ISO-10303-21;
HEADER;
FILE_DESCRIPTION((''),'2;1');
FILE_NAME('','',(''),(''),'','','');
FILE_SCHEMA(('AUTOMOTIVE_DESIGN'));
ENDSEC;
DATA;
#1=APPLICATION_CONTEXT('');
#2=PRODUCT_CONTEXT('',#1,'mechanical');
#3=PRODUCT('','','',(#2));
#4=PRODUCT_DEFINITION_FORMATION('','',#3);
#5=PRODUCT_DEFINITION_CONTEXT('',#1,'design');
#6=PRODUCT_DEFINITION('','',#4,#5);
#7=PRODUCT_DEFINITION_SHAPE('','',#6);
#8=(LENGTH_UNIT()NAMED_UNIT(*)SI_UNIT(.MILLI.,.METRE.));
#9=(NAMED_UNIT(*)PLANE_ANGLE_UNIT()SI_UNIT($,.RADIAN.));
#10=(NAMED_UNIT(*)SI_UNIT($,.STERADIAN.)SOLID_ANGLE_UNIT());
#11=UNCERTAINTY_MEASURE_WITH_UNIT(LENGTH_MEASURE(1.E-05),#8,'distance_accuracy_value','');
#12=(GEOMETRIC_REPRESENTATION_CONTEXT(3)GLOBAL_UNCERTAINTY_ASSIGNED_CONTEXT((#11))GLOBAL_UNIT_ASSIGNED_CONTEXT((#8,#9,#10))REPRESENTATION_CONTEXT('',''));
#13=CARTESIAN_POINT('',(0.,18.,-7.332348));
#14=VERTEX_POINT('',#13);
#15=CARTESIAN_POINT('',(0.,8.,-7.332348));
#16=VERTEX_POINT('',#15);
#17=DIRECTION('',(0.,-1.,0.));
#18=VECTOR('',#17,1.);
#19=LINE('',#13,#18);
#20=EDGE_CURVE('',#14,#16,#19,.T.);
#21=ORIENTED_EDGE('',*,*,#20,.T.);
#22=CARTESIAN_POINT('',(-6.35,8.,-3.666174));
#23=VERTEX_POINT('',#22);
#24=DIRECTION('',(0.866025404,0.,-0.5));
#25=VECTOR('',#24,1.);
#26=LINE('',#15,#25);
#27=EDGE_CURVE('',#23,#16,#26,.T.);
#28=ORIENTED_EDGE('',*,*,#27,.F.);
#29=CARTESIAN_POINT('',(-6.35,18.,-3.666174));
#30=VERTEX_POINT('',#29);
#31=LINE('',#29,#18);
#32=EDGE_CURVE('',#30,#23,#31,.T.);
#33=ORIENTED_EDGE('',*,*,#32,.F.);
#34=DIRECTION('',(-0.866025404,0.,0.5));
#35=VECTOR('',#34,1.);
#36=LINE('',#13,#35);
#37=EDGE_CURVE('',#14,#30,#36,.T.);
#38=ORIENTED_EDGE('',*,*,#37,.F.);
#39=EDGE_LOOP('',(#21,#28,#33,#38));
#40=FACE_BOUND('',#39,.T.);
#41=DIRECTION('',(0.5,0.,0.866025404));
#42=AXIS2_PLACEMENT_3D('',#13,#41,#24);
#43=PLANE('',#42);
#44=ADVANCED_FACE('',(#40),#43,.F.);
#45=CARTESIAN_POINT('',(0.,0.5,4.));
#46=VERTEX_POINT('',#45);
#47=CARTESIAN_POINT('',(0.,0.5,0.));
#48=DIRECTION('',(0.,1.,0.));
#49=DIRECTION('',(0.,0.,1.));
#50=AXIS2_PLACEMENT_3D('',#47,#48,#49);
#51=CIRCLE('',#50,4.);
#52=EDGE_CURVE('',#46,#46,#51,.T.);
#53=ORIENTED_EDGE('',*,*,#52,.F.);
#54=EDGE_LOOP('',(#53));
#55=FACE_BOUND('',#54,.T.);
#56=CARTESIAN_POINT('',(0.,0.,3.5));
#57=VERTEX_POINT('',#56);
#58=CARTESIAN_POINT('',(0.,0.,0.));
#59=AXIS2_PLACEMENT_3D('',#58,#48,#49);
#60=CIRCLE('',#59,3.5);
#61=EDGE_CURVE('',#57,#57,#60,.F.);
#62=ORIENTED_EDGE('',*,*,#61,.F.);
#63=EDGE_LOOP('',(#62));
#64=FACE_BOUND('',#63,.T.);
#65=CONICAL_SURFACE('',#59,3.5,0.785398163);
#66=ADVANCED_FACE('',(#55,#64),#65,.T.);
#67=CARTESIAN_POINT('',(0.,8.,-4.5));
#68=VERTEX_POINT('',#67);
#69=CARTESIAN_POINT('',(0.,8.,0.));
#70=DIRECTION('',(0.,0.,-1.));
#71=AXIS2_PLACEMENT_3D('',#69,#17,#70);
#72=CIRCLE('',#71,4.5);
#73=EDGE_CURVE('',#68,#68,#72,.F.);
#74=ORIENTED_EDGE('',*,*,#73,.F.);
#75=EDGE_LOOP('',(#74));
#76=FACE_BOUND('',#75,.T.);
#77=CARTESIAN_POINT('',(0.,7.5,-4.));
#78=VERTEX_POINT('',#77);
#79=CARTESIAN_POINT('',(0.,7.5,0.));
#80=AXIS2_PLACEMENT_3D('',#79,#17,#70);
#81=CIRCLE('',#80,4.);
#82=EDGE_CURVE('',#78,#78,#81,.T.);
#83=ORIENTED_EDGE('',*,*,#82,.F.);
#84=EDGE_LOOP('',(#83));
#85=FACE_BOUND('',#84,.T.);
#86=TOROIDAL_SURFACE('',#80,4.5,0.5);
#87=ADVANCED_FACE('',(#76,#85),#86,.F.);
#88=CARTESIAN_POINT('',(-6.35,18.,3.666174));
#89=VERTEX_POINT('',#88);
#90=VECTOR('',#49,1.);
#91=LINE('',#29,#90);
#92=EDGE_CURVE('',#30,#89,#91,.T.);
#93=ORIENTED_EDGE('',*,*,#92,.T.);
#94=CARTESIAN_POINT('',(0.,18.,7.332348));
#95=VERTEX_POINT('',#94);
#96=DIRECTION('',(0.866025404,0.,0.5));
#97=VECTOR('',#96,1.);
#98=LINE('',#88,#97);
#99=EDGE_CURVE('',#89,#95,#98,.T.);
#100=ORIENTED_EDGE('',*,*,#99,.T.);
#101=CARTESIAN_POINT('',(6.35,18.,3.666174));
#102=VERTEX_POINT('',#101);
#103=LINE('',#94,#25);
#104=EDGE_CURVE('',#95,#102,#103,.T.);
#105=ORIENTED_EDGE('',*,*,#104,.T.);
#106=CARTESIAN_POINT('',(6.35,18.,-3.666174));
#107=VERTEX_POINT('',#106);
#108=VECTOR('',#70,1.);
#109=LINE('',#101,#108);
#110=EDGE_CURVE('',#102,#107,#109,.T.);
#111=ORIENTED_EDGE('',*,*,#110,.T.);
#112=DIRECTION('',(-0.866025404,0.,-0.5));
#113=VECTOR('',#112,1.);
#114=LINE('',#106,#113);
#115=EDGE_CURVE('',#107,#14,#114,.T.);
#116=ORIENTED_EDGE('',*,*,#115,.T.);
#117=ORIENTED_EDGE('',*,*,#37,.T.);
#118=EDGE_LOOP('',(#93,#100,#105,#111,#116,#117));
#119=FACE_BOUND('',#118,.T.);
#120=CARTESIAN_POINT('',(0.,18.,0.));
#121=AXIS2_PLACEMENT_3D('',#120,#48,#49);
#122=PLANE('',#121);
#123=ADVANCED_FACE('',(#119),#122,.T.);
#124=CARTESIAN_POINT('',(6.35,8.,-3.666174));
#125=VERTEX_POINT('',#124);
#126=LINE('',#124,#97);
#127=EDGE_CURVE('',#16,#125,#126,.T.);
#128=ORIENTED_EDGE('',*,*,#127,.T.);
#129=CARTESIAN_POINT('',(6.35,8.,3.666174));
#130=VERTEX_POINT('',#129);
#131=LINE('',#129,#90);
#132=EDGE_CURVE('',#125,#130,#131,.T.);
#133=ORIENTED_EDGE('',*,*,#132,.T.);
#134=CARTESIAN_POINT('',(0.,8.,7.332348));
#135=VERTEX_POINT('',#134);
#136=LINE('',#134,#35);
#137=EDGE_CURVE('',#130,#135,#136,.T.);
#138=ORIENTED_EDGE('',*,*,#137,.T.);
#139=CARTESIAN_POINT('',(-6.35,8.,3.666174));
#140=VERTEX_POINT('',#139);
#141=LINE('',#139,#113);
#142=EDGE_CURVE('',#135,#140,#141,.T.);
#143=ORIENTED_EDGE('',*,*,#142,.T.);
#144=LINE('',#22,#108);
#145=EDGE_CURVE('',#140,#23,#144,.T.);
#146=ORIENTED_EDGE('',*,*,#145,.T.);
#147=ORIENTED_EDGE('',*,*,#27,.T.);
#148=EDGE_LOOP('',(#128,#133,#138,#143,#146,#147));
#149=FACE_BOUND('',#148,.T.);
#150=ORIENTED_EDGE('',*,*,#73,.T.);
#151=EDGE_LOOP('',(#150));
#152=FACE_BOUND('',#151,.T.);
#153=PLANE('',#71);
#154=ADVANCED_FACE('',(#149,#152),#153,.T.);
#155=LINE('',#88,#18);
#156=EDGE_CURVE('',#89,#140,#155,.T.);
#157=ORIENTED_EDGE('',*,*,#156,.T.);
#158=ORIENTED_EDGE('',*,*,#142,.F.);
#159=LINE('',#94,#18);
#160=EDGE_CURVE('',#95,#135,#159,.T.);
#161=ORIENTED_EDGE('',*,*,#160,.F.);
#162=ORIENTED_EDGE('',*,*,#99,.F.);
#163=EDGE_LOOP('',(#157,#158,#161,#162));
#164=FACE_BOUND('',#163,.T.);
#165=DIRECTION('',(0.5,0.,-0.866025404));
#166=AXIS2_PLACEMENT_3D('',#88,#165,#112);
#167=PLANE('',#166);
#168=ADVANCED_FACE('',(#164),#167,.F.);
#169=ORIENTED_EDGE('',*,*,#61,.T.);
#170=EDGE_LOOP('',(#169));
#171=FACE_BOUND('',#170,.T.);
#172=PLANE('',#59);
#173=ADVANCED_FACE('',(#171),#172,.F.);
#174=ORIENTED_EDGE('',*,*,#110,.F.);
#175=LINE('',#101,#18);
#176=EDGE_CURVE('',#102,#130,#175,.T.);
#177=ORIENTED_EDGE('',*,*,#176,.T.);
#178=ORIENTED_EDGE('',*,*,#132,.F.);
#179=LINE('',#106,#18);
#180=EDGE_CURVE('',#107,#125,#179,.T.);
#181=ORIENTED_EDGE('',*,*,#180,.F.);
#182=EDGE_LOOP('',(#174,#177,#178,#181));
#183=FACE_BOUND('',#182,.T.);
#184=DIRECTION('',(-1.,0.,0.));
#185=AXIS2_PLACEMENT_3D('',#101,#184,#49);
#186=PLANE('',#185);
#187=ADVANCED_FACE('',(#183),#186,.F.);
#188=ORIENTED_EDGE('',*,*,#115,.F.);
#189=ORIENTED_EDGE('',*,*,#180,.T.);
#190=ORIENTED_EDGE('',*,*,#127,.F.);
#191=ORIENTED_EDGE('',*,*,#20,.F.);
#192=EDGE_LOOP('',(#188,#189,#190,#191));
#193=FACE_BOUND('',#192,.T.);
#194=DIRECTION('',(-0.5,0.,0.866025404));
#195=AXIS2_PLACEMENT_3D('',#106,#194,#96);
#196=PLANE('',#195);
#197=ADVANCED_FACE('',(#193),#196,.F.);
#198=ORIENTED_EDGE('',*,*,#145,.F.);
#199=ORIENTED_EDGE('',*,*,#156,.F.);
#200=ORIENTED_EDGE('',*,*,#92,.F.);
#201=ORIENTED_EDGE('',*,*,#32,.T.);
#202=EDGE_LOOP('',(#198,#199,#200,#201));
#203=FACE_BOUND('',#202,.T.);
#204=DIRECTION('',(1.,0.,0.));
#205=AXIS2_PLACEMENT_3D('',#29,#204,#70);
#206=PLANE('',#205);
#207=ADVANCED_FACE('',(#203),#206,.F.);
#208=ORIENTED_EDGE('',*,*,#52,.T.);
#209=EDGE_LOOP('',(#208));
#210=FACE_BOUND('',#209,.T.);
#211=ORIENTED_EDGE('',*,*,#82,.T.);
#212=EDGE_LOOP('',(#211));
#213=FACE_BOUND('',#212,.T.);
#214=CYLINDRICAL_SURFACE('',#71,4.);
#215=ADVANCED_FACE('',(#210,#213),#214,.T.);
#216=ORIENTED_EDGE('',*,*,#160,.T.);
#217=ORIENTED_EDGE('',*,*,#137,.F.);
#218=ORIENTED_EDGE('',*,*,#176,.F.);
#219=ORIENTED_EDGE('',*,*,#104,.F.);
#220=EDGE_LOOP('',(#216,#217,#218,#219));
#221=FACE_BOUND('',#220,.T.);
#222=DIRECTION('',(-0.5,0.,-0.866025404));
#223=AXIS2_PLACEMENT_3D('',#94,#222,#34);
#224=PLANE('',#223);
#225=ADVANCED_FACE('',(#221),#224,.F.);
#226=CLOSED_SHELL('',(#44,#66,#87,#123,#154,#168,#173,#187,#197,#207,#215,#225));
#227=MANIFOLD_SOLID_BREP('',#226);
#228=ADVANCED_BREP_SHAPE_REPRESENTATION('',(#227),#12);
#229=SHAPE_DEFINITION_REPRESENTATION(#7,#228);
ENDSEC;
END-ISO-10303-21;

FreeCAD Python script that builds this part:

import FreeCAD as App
import Part
import Sketcher
Q = App.Units.Quantity


def edges_at(feature, points):
    """Names of the edges that pass closest to the given points."""
    edges = feature.Shape.Edges
    near = lambda p: min(range(len(edges)), key=lambda i: edges[i].distToShape(Part.Vertex(*p))[0])
    return sorted({f"Edge{near(p) + 1}" for p in points})

doc = App.newDocument("Part")
body = doc.addObject("PartDesign::Body", "Body")

sketch1 = body.newObject("Sketcher::SketchObject", "Sketch")
sketch1.AttachmentSupport = (doc.getObject("XZ_Plane"), [""])
sketch1.MapMode = "FlatFace"
sketch1.addGeometry([
    Part.LineSegment(App.Vector(6, -4, 0), App.Vector(0, -7, 0)),
    Part.LineSegment(App.Vector(0, -7, 0), App.Vector(-6, -4, 0)),
    Part.LineSegment(App.Vector(-6, -4, 0), App.Vector(-6, 4, 0)),
    Part.LineSegment(App.Vector(-6, 4, 0), App.Vector(0, 7, 0)),
    Part.LineSegment(App.Vector(0, 7, 0), App.Vector(6, 4, 0)),
    Part.LineSegment(App.Vector(6, 4, 0), App.Vector(6, -4, 0)),
], False)
sketch1.addConstraint([
    Sketcher.Constraint("Coincident", 0, 2, 1, 1),
    Sketcher.Constraint("Coincident", 1, 2, 2, 1),
    Sketcher.Constraint("Coincident", 2, 2, 3, 1),
    Sketcher.Constraint("Coincident", 3, 2, 4, 1),
    Sketcher.Constraint("Coincident", 4, 2, 5, 1),
    Sketcher.Constraint("Coincident", 5, 2, 0, 1),
    Sketcher.Constraint("Vertical", 2),
    Sketcher.Constraint("Vertical", 5),
    Sketcher.Constraint("Symmetric", 0, 2, 3, 2, -1, 1),
    Sketcher.Constraint("Symmetric", 1, 2, 4, 2, -1, 1),
    Sketcher.Constraint("PointOnObject", 0, 2, -2),
    Sketcher.Constraint("Parallel", 0, 3),
    Sketcher.Constraint("Horizontal", 2, 2, 4, 2),
    Sketcher.Constraint("Angle", 0, Q("-150 deg")),
    Sketcher.Constraint("DistanceX", 2, 2, 4, 2, 12.7),
    Sketcher.Constraint("DistanceY", 2, 1, 2, 2, 7.332348),
])
pad1 = body.newObject("PartDesign::Pad", "Pad")
pad1.Profile = sketch1
pad1.Length = 18
pad1.Reversed = True

sketch2 = body.newObject("Sketcher::SketchObject", "Sketch001")
sketch2.AttachmentSupport = (doc.getObject("XZ_Plane"), [""])
sketch2.MapMode = "FlatFace"
sketch2.addGeometry([
    Part.Circle(App.Vector(0, 0, 0), App.Vector(0, 0, 1), 11),
    Part.Circle(App.Vector(0, 0, 0), App.Vector(0, 0, 1), 4),
], False)
sketch2.addConstraint([
    Sketcher.Constraint("Coincident", 0, 3, -1, 1),
    Sketcher.Constraint("Coincident", 1, 3, -1, 1),
    Sketcher.Constraint("Diameter", 1, 8.0),
    Sketcher.Constraint("Diameter", 0, 22.08391),
])
pocket1 = body.newObject("PartDesign::Pocket", "Pocket")
pocket1.Profile = sketch2
pocket1.Length = 8
doc.recompute()

chamfer = body.newObject("PartDesign::Chamfer", "Chamfer")
chamfer.Base = (pocket1, edges_at(pocket1, [(0, 0, 4)]))
chamfer.Size = 0.5
doc.recompute()

fillet = body.newObject("PartDesign::Fillet", "Fillet")
fillet.Base = (chamfer, edges_at(chamfer, [(0, 8, 4)]))
fillet.Radius = 0.5

doc.recompute()
